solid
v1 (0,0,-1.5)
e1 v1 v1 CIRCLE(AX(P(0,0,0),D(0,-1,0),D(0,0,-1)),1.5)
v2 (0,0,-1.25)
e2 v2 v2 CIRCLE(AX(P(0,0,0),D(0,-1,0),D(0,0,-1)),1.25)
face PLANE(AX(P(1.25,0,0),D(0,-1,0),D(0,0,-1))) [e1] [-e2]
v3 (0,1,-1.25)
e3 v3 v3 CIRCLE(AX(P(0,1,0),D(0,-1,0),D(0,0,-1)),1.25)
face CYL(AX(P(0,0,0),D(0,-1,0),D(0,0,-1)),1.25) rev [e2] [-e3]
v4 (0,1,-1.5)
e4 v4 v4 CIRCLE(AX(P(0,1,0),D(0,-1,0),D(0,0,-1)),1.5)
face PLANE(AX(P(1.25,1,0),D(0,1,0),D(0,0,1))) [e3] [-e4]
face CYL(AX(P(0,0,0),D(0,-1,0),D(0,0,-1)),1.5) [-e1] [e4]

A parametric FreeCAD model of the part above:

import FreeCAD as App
import Part
import Sketcher

doc = App.newDocument("Part")
body = doc.addObject("PartDesign::Body", "Body")

# Sketch on XY plane
sketch1 = body.newObject("Sketcher::SketchObject", "Sketch")
sketch1.AttachmentSupport = (doc.getObject("XY_Plane"), [""])
sketch1.MapMode = "FlatFace"
sketch1.addGeometry([
    Part.LineSegment(App.Vector(1.25, 1, 0), App.Vector(1.25, 0, 0)),
    Part.LineSegment(App.Vector(1.25, 0, 0), App.Vector(1.5, 0, 0)),
    Part.LineSegment(App.Vector(1.5, 0, 0), App.Vector(1.5, 1, 0)),
    Part.LineSegment(App.Vector(1.5, 1, 0), App.Vector(1.25, 1, 0)),
], False)
sketch1.addConstraint([
    Sketcher.Constraint("Coincident", 0, 2, 1, 1),
    Sketcher.Constraint("Coincident", 1, 2, 2, 1),
    Sketcher.Constraint("Coincident", 2, 2, 3, 1),
    Sketcher.Constraint("Coincident", 3, 2, 0, 1),
    Sketcher.Constraint("Vertical", 0),
    Sketcher.Constraint("Horizontal", 1),
    Sketcher.Constraint("Vertical", 2),
    Sketcher.Constraint("Horizontal", 3),
    Sketcher.Constraint("PointOnObject", 0, 2, -1),
    Sketcher.Constraint("DistanceY", 0, 2, 0, 1, 1.0),
    Sketcher.Constraint("DistanceX", 1, 1, 1, 2, 0.25),
    Sketcher.Constraint("DistanceX", -1, 1, 1, 2, 1.5),
])
revolution = body.newObject("PartDesign::Revolution", "Revolution")
revolution.Profile = sketch1
revolution.ReferenceAxis = (sketch1, ["V_Axis"])
revolution.Angle = 360

doc.recompute()
